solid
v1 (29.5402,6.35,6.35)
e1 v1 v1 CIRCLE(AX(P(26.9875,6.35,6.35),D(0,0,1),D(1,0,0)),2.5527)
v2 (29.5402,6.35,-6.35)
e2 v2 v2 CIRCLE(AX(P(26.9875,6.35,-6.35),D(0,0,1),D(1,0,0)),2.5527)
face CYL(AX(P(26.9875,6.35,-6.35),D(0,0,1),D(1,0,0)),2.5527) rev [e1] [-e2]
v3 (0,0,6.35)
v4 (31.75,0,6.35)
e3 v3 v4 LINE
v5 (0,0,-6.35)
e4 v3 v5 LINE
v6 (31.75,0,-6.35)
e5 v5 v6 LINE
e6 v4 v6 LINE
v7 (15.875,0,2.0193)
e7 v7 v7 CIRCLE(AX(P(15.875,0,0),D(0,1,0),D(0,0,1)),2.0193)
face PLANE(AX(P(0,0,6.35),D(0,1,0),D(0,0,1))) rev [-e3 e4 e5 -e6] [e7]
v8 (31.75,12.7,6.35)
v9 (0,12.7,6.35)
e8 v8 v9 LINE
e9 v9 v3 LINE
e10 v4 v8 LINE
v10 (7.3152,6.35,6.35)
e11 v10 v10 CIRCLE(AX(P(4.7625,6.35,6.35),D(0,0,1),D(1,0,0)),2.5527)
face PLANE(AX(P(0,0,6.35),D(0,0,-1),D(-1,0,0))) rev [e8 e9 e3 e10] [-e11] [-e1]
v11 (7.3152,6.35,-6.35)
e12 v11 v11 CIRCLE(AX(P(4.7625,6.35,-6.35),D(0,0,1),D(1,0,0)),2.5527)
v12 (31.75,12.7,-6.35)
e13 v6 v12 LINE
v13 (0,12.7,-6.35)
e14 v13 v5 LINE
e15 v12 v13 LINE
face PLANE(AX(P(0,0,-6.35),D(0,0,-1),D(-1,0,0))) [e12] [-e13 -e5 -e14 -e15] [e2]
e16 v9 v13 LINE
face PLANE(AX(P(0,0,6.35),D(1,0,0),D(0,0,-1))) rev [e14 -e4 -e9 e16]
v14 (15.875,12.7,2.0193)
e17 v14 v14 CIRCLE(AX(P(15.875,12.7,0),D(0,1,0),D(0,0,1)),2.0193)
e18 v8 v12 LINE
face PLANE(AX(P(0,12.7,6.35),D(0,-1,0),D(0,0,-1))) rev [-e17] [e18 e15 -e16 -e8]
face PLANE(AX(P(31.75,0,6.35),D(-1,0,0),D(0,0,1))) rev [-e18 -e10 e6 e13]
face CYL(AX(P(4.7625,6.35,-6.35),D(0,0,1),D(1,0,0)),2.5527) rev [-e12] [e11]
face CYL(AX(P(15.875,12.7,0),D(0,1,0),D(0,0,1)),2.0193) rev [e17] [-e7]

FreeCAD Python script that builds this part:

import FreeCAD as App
import Part
import Sketcher
Q = App.Units.Quantity


def add_polygon(sketch, points):
    """Adds a closed chain of lines whose ends are joined by coincident constraints."""
    first, n = sketch.GeometryCount, len(points)
    for a, b in zip(points, points[1:] + points[:1]):
        sketch.addGeometry(Part.LineSegment(App.Vector(*a, 0), App.Vector(*b, 0)), False)
    for i in range(n):
        sketch.addConstraint(Sketcher.Constraint("Coincident", first + i, 2, first + (i + 1) % n, 1))

doc = App.newDocument("Part")
body = doc.addObject("PartDesign::Body", "Body")

# Sketch on XY plane
sketch1 = body.newObject("Sketcher::SketchObject", "Sketch")
sketch1.AttachmentSupport = (doc.getObject("XY_Plane"), [""])
sketch1.MapMode = "FlatFace"
add_polygon(sketch1, [(0, 13), (0, 0), (32, 0), (32, 13)])  # lines 0-3
sketch1.addConstraint(Sketcher.Constraint("Vertical", 0))
sketch1.addConstraint(Sketcher.Constraint("Horizontal", 1))
sketch1.addConstraint(Sketcher.Constraint("Vertical", 2))
sketch1.addConstraint(Sketcher.Constraint("Horizontal", 3))
sketch1.addConstraint(Sketcher.Constraint("Coincident", 0, 2, -1, 1))
sketch1.addConstraint(Sketcher.Constraint("DistanceY", 0, 2, 0, 1, Q("0.5 in")))
sketch1.addConstraint(Sketcher.Constraint("DistanceX", 1, 1, 1, 2, Q("1.25 in")))
pad1 = body.newObject("PartDesign::Pad", "Pad")
pad1.Profile = sketch1
pad1.Length = Q("0.5 in")
pad1.Midplane = True

# Sketch on XY plane
sketch2 = body.newObject("Sketcher::SketchObject", "Sketch001")
sketch2.AttachmentSupport = (doc.getObject("XY_Plane"), [""])
sketch2.MapMode = "FlatFace"
sketch2.AttachmentOffset = App.Placement(App.Vector(0, 0, 0.25 * 25.4), App.Rotation())
sketch2.addGeometry(Part.Circle(App.Vector(4.8, 6.3, 0), App.Vector(0, 0, 1), 2.6), False)
sketch2.addGeometry(Part.Circle(App.Vector(27, 6.3, 0), App.Vector(0, 0, 1), 2.6), False)
sketch2.addConstraint(Sketcher.Constraint("Equal", 0, 1))
sketch2.addConstraint(Sketcher.Constraint("Horizontal", 0, 3, 1, 3))
sketch2.addConstraint(Sketcher.Constraint("Diameter", 0, Q("0.201 in")))
sketch2.addConstraint(Sketcher.Constraint("DistanceY", -1, 1, 0, 3, Q("0.25 in")))
sketch2.addConstraint(Sketcher.Constraint("DistanceX", -1, 1, 0, 3, Q("0.1875 in")))
sketch2.addConstraint(Sketcher.Constraint("DistanceX", -1, 1, 1, 3, Q("1.0625 in")))
pocket1 = body.newObject("PartDesign::Pocket", "Pocket")
pocket1.Profile = sketch2
pocket1.Type = "ThroughAll"

# Sketch on XZ plane
sketch3 = body.newObject("Sketcher::SketchObject", "Sketch002")
sketch3.AttachmentSupport = (doc.getObject("XZ_Plane"), [""])
sketch3.MapMode = "FlatFace"
sketch3.AttachmentOffset = App.Placement(App.Vector(0, 0, -0.5 * 25.4), App.Rotation())
sketch3.addGeometry(Part.Circle(App.Vector(15.9, 0, 0), App.Vector(0, 0, 1), 2), False)
sketch3.addConstraint(Sketcher.Constraint("PointOnObject", 0, 3, -1))
sketch3.addConstraint(Sketcher.Constraint("Diameter", 0, Q("0.159 in")))
sketch3.addConstraint(Sketcher.Constraint("DistanceX", -1, 1, 0, 3, Q("0.625 in")))
doc.recompute()
hole = body.newObject("PartDesign::Hole", "Hole")
hole.Profile = sketch3
hole.ThreadType = "None"
hole.Diameter = Q("0.159 in")
hole.DepthType = "ThroughAll"
hole.Reversed = True

doc.recompute()
